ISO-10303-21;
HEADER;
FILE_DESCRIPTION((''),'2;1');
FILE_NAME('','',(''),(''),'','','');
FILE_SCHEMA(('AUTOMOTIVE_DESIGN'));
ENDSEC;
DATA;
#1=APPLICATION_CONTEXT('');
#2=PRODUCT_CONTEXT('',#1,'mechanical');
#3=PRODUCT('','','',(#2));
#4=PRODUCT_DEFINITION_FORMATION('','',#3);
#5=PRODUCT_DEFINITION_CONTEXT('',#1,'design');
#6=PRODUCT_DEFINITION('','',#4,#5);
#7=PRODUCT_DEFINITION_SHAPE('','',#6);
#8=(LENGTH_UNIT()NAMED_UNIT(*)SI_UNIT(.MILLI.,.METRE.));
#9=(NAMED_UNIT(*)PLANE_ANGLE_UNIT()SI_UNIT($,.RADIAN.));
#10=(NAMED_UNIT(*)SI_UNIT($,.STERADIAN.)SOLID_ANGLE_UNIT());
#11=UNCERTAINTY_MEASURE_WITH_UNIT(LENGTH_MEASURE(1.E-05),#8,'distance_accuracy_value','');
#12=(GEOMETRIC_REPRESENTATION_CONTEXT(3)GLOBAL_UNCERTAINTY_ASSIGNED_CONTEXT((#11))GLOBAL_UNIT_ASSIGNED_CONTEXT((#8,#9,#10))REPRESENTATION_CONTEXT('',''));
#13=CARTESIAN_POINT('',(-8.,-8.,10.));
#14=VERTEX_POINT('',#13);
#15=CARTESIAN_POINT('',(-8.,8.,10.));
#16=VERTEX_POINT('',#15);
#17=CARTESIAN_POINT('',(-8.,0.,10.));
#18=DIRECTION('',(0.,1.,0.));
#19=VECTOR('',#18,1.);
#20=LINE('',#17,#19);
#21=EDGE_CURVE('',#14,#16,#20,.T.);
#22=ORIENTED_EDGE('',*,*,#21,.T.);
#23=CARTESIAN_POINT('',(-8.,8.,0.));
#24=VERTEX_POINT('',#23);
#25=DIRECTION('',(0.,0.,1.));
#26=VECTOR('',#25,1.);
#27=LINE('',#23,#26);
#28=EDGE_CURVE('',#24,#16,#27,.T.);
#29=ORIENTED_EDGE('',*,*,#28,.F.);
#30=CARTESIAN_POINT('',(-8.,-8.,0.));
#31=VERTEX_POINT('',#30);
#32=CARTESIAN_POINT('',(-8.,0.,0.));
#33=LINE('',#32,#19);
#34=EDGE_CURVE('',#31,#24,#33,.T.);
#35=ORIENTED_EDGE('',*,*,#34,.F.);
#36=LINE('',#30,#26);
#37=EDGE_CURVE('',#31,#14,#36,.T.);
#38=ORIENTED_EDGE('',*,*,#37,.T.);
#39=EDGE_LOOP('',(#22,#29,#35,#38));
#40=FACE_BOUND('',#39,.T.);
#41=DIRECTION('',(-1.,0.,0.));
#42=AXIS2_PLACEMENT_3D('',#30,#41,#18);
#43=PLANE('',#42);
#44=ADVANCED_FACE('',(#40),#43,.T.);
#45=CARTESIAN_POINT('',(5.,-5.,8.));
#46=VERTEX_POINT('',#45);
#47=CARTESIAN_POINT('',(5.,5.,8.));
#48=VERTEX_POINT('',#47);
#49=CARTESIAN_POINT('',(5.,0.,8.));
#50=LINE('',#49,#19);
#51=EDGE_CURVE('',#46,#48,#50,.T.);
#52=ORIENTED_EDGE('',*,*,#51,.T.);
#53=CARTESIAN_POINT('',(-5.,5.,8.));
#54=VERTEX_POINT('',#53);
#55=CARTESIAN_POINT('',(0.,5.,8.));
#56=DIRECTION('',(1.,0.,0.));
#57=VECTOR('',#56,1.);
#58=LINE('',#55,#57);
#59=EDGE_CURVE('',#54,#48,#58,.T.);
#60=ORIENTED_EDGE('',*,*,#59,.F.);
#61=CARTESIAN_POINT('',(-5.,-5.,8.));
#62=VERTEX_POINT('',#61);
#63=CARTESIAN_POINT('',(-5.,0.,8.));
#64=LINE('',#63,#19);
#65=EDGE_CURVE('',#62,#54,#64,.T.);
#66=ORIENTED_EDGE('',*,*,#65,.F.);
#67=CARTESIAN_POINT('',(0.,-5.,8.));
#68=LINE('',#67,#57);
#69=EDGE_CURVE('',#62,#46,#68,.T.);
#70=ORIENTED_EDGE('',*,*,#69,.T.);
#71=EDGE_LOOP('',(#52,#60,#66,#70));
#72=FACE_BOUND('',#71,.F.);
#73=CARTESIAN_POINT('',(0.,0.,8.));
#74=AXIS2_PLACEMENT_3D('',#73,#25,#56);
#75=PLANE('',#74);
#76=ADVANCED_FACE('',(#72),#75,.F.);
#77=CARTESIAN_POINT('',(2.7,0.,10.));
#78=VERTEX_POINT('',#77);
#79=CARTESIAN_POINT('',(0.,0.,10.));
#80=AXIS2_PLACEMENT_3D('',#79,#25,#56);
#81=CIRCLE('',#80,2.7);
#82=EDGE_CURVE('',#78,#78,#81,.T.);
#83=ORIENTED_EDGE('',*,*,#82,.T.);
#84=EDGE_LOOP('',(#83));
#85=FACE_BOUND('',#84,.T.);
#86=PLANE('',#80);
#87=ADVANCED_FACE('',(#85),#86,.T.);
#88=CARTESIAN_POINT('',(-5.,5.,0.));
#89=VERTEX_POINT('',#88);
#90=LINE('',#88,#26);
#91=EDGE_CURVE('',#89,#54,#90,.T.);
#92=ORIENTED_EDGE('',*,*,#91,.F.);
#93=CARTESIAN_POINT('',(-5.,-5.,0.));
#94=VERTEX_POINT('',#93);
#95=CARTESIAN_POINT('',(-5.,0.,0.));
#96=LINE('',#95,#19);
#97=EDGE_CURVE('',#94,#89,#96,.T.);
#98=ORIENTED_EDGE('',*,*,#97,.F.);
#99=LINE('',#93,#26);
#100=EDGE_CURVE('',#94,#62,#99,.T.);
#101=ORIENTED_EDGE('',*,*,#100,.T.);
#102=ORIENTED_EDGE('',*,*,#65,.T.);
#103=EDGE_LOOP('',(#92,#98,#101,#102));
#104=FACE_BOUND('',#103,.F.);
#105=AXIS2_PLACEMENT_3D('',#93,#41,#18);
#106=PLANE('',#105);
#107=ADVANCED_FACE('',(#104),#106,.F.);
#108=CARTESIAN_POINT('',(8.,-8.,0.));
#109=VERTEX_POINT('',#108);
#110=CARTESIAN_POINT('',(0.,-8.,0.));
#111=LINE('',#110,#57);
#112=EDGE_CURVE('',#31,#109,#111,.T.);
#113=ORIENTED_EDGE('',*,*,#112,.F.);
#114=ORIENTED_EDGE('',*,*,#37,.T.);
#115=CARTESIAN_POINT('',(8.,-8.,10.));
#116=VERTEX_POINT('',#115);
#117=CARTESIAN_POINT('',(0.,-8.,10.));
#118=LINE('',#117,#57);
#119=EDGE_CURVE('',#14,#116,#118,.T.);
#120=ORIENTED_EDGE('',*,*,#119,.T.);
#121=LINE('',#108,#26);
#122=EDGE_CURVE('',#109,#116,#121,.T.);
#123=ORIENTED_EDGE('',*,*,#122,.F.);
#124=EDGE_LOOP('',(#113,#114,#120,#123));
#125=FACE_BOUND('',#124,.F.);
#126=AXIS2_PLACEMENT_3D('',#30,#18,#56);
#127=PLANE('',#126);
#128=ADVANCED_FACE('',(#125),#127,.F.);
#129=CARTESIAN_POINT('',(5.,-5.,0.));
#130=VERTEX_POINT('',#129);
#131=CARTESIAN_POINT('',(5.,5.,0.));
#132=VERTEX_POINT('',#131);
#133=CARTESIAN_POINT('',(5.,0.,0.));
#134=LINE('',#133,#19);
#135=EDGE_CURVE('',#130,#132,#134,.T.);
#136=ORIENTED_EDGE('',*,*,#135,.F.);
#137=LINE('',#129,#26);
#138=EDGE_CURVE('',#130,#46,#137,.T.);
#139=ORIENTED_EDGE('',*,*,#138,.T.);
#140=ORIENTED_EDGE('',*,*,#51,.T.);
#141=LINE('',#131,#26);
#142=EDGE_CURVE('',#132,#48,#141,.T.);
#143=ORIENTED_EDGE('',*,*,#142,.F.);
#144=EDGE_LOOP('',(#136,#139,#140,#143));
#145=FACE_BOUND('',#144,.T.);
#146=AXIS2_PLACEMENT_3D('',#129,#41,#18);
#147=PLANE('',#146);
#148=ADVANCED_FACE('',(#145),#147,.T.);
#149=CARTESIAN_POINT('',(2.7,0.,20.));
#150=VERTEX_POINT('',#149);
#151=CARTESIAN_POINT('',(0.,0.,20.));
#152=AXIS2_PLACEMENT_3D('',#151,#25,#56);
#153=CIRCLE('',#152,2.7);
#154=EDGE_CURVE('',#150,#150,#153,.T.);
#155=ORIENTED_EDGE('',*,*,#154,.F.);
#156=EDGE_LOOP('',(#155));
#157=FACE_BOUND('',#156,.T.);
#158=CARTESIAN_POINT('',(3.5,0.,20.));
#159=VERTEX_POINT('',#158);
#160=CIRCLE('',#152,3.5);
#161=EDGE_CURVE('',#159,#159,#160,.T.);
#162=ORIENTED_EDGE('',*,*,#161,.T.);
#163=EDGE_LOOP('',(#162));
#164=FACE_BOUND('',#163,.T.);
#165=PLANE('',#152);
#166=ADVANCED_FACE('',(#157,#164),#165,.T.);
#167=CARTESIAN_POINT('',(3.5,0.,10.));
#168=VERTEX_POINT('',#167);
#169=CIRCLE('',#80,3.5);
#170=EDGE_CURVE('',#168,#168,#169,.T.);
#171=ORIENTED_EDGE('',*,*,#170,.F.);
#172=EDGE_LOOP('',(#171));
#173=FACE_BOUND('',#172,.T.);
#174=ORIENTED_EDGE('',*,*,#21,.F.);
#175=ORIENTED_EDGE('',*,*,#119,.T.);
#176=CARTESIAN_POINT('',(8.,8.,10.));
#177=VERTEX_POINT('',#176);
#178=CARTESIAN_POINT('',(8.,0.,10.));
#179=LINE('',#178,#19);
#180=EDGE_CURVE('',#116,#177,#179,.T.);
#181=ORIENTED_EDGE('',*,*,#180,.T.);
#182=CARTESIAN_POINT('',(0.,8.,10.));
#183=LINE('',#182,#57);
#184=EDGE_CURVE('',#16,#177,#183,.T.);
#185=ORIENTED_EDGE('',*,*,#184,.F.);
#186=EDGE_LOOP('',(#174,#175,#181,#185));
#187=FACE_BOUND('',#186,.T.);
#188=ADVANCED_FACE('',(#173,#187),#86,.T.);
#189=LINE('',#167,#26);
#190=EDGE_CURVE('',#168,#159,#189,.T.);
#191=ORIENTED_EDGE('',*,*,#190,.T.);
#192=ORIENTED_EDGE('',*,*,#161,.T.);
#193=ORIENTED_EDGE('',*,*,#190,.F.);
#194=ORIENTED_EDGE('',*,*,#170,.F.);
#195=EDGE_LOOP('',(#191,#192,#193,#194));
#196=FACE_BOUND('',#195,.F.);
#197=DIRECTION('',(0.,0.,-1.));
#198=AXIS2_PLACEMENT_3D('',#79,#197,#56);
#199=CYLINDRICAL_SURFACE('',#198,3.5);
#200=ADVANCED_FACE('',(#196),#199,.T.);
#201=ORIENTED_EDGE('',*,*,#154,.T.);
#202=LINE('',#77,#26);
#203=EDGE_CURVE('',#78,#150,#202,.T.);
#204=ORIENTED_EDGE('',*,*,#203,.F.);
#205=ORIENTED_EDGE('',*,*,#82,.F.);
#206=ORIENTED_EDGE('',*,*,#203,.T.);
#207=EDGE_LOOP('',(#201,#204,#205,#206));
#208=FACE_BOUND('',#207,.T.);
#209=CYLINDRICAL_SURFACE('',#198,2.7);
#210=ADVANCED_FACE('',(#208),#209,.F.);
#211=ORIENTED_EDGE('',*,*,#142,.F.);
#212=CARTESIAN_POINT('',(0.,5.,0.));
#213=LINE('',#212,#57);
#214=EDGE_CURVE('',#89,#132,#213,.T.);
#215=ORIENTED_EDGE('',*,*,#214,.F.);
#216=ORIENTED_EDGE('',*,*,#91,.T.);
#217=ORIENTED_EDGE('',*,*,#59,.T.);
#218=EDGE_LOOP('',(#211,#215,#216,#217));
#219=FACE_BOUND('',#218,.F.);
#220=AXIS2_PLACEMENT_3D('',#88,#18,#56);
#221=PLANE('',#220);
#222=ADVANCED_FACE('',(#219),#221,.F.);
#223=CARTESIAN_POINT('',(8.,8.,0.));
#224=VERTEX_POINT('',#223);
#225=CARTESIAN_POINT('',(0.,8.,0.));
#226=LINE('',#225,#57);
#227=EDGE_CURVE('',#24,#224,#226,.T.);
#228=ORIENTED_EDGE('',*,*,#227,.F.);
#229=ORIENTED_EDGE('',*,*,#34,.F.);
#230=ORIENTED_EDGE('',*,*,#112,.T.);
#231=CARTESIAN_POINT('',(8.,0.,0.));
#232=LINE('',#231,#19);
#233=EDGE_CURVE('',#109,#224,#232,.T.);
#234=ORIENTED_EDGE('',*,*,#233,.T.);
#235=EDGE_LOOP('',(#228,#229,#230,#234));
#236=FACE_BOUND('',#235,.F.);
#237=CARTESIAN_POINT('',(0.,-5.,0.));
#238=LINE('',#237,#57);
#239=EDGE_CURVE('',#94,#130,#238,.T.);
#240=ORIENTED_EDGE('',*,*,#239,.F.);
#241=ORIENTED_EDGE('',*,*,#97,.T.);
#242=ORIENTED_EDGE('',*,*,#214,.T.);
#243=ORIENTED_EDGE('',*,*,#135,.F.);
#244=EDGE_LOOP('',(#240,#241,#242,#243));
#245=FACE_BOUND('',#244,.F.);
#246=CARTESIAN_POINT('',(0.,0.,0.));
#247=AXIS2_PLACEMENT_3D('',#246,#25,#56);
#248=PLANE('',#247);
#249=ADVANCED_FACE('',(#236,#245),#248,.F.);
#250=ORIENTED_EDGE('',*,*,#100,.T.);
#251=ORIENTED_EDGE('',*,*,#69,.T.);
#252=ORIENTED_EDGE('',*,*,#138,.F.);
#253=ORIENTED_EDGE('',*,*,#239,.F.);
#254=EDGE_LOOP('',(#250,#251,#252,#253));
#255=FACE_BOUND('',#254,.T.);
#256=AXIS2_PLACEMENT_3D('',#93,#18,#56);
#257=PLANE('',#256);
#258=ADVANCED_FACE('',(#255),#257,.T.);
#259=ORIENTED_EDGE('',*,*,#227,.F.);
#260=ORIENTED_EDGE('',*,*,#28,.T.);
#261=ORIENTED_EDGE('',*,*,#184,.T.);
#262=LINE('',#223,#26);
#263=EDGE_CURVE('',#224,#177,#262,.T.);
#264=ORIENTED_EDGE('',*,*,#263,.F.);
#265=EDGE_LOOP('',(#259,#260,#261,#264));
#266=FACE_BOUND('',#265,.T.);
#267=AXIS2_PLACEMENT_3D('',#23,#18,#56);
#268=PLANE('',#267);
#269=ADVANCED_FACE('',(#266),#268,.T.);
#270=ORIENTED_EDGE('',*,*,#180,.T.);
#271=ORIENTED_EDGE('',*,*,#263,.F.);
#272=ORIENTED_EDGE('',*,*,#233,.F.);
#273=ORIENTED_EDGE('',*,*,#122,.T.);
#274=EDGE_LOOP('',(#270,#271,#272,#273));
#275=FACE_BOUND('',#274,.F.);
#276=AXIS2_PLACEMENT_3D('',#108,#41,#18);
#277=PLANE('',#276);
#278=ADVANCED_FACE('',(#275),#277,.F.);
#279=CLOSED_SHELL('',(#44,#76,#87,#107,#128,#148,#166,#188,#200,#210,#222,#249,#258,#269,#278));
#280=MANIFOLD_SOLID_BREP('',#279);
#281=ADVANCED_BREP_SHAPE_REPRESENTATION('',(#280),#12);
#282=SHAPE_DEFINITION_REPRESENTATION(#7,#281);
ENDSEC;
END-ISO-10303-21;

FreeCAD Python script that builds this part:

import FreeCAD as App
import Part
import Sketcher
from FreeCAD import Vector
Q = App.Units.Quantity

doc = App.newDocument("Part")
body = doc.addObject("PartDesign::Body", "Body")

sketch1 = doc.addObject("Sketcher::SketchObject", "Sketch")
body.addObject(sketch1)
sketch1.AttachmentSupport = (doc.XY_Plane, [""])
sketch1.MapMode = "FlatFace"
sketch1.addGeometry(Part.LineSegment(Vector(-5, 5, 0), Vector(-5, -5, 0)), False)
sketch1.addGeometry(Part.LineSegment(Vector(-5, -5, 0), Vector(5, -5, 0)), False)
sketch1.addGeometry(Part.LineSegment(Vector(5, -5, 0), Vector(5, 5, 0)), False)
sketch1.addGeometry(Part.LineSegment(Vector(5, 5, 0), Vector(-5, 5, 0)), False)
sketch1.addConstraint(Sketcher.Constraint("Coincident", 0, 2, 1, 1))
sketch1.addConstraint(Sketcher.Constraint("Coincident", 1, 2, 2, 1))
sketch1.addConstraint(Sketcher.Constraint("Coincident", 2, 2, 3, 1))
sketch1.addConstraint(Sketcher.Constraint("Coincident", 3, 2, 0, 1))
sketch1.addConstraint(Sketcher.Constraint("Vertical", 0))
sketch1.addConstraint(Sketcher.Constraint("Horizontal", 1))
sketch1.addConstraint(Sketcher.Constraint("Vertical", 2))
sketch1.addConstraint(Sketcher.Constraint("Horizontal", 3))
sketch1.addConstraint(Sketcher.Constraint("Symmetric", 0, 2, 2, 2, -1, 1))
sketch1.addConstraint(Sketcher.Constraint("Equal", 3, 0))
sketch1.addConstraint(Sketcher.Constraint("DistanceX", 1, 1, 1, 2, Q("10 mm")))
pad1 = doc.addObject("PartDesign::Pad", "Pad")
body.addObject(pad1)
pad1.Profile = sketch1
pad1.Length = 8
body2 = doc.addObject("PartDesign::Body", "Body001")

sketch2 = doc.addObject("Sketcher::SketchObject", "Sketch001")
body2.addObject(sketch2)
sketch2.AttachmentSupport = (doc.getObject("XY_Plane001"), [""])
sketch2.MapMode = "FlatFace"
sketch2.AttachmentOffset = App.Placement(Vector(0, 0, 10), App.Rotation())
sketch2.addGeometry(Part.Circle(Vector(0, 0, 0), Vector(0, 0, 1), 2.7), False)
sketch2.addConstraint(Sketcher.Constraint("Coincident", 0, 3, -1, 1))
sketch2.addConstraint(Sketcher.Constraint("Diameter", 0, Q("5.4 mm")))
pad2 = doc.addObject("PartDesign::Pad", "Pad001")
body2.addObject(pad2)
pad2.Profile = sketch2
pad2.Length = 10
body3 = doc.addObject("PartDesign::Body", "Body002")

sketch3 = doc.addObject("Sketcher::SketchObject", "Sketch002")
body3.addObject(sketch3)
sketch3.AttachmentSupport = (doc.getObject("XY_Plane002"), [""])
sketch3.MapMode = "FlatFace"
sketch3.AttachmentOffset = App.Placement(Vector(0, 0, 10), App.Rotation())
sketch3.addGeometry(Part.Circle(Vector(0, 0, 0), Vector(0, 0, 1), 3.5), False)
sketch3.addConstraint(Sketcher.Constraint("Coincident", 0, 3, -1, 1))
sketch3.addConstraint(Sketcher.Constraint("Diameter", 0, Q("7 mm")))
pad3 = doc.addObject("PartDesign::Pad", "Pad002")
body3.addObject(pad3)
pad3.Profile = sketch3
pad3.Length = 10
doc.recompute()

boolean = doc.addObject("PartDesign::Boolean", "Boolean")
body3.addObject(boolean)
boolean.Type = "Cut"
boolean.addObjects([body2])
body4 = doc.addObject("PartDesign::Body", "Body003")

sketch4 = doc.addObject("Sketcher::SketchObject", "Sketch003")
body4.addObject(sketch4)
sketch4.AttachmentSupport = (doc.getObject("XY_Plane003"), [""])
sketch4.MapMode = "FlatFace"
sketch4.addGeometry(Part.LineSegment(Vector(-8, 8, 0), Vector(-8, -8, 0)), False)
sketch4.addGeometry(Part.LineSegment(Vector(-8, -8, 0), Vector(8, -8, 0)), False)
sketch4.addGeometry(Part.LineSegment(Vector(8, -8, 0), Vector(8, 8, 0)), False)
sketch4.addGeometry(Part.LineSegment(Vector(8, 8, 0), Vector(-8, 8, 0)), False)
sketch4.addConstraint(Sketcher.Constraint("Coincident", 0, 2, 1, 1))
sketch4.addConstraint(Sketcher.Constraint("Coincident", 1, 2, 2, 1))
sketch4.addConstraint(Sketcher.Constraint("Coincident", 2, 2, 3, 1))
sketch4.addConstraint(Sketcher.Constraint("Coincident", 3, 2, 0, 1))
sketch4.addConstraint(Sketcher.Constraint("Vertical", 0))
sketch4.addConstraint(Sketcher.Constraint("Horizontal", 1))
sketch4.addConstraint(Sketcher.Constraint("Vertical", 2))
sketch4.addConstraint(Sketcher.Constraint("Horizontal", 3))
sketch4.addConstraint(Sketcher.Constraint("Symmetric", 0, 2, 2, 2, -1, 1))
sketch4.addConstraint(Sketcher.Constraint("Equal", 3, 0))
sketch4.addConstraint(Sketcher.Constraint("DistanceX", 1, 1, 1, 2, Q("16 mm")))
pad4 = doc.addObject("PartDesign::Pad", "Pad003")
body4.addObject(pad4)
pad4.Profile = sketch4
pad4.Length = 10
doc.recompute()

boolean2 = doc.addObject("PartDesign::Boolean", "Boolean001")
body4.addObject(boolean2)
boolean2.Type = "Fuse"
boolean2.addObjects([body3])
doc.recompute()

boolean3 = doc.addObject("PartDesign::Boolean", "Boolean002")
body4.addObject(boolean3)
boolean3.Type = "Cut"
boolean3.addObjects([body])

doc.recompute()
